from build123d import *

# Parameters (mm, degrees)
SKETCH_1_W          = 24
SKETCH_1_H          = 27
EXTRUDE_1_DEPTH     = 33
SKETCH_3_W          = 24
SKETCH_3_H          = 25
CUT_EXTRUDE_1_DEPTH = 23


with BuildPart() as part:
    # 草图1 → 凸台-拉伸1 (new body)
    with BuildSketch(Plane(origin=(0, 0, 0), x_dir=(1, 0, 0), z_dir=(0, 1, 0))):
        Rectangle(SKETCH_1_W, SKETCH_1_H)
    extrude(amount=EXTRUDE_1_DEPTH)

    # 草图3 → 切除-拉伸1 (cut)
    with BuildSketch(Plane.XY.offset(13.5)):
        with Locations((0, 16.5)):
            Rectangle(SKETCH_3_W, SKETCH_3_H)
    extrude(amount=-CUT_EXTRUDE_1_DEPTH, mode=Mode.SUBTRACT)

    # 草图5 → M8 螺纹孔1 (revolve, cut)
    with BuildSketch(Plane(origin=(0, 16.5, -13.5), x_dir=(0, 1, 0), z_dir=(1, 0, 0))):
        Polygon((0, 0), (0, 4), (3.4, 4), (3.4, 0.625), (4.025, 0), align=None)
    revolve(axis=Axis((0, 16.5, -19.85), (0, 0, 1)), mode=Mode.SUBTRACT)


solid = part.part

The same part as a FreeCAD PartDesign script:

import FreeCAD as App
import Part
import Sketcher
Q = App.Units.Quantity

doc = App.newDocument("Part")
body = doc.addObject("PartDesign::Body", "Body")

# Sketch on XZ plane
sketch1 = body.newObject("Sketcher::SketchObject", "Sketch")
sketch1.AttachmentSupport = (doc.getObject("XZ_Plane"), [""])
sketch1.MapMode = "FlatFace"
sketch1.addGeometry([
    Part.LineSegment(App.Vector(-12, -13.5, 0), App.Vector(-12, 13.5, 0)),
    Part.LineSegment(App.Vector(-12, 13.5, 0), App.Vector(12, 13.5, 0)),
    Part.LineSegment(App.Vector(12, 13.5, 0), App.Vector(12, -13.5, 0)),
    Part.LineSegment(App.Vector(12, -13.5, 0), App.Vector(-12, -13.5, 0)),
], False)
sketch1.addConstraint([
    Sketcher.Constraint("Coincident", 0, 2, 1, 1),
    Sketcher.Constraint("Coincident", 1, 2, 2, 1),
    Sketcher.Constraint("Coincident", 2, 2, 3, 1),
    Sketcher.Constraint("Coincident", 3, 2, 0, 1),
    Sketcher.Constraint("Vertical", 0),
    Sketcher.Constraint("Horizontal", 1),
    Sketcher.Constraint("Vertical", 2),
    Sketcher.Constraint("Horizontal", 3),
    Sketcher.Constraint("Symmetric", 0, 2, 2, 2, -1, 1),
    Sketcher.Constraint("DistanceX", 1, 1, 1, 2, 24.0),
    Sketcher.Constraint("DistanceY", 0, 1, 0, 2, 27.0),
])
pad1 = body.newObject("PartDesign::Pad", "Pad")
pad1.Profile = sketch1
pad1.Length = 33
pad1.Reversed = True

# Sketch on XY plane
sketch2 = body.newObject("Sketcher::SketchObject", "Sketch001")
sketch2.AttachmentSupport = (doc.getObject("XY_Plane"), [""])
sketch2.MapMode = "FlatFace"
sketch2.AttachmentOffset = App.Placement(App.Vector(0, 0, 13.5), App.Rotation())
sketch2.addGeometry([
    Part.LineSegment(App.Vector(-12, 29, 0), App.Vector(-12, 4, 0)),
    Part.LineSegment(App.Vector(-12, 4, 0), App.Vector(12, 4, 0)),
    Part.LineSegment(App.Vector(12, 4, 0), App.Vector(12, 29, 0)),
    Part.LineSegment(App.Vector(12, 29, 0), App.Vector(-12, 29, 0)),
], False)
sketch2.addConstraint([
    Sketcher.Constraint("Coincident", 0, 2, 1, 1),
    Sketcher.Constraint("Coincident", 1, 2, 2, 1),
    Sketcher.Constraint("Coincident", 2, 2, 3, 1),
    Sketcher.Constraint("Coincident", 3, 2, 0, 1),
    Sketcher.Constraint("Vertical", 0),
    Sketcher.Constraint("Horizontal", 1),
    Sketcher.Constraint("Vertical", 2),
    Sketcher.Constraint("Horizontal", 3),
    Sketcher.Constraint("DistanceX", 1, 1, 1, 2, 24.0),
    Sketcher.Constraint("DistanceY", 0, 2, 0, 1, 25.0),
    Sketcher.Constraint("DistanceX", 0, 2, -1, 1, 12.0),
    Sketcher.Constraint("DistanceY", -1, 1, 0, 2, 4.0),
])
pocket1 = body.newObject("PartDesign::Pocket", "Pocket")
pocket1.Profile = sketch2
pocket1.Length = 23

# Sketch on YZ plane
sketch3 = body.newObject("Sketcher::SketchObject", "Sketch002")
sketch3.AttachmentSupport = (doc.getObject("YZ_Plane"), [""])
sketch3.MapMode = "FlatFace"
sketch3.addGeometry([
    Part.LineSegment(App.Vector(16.5, -9.5, 0), App.Vector(16.5, -13.5, 0)),  # 0
    Part.LineSegment(App.Vector(16.5, -13.5, 0), App.Vector(20.525, -13.5, 0)),  # 1
    Part.LineSegment(App.Vector(20.525, -13.5, 0), App.Vector(19.9, -12.875, 0)),  # 2
    Part.LineSegment(App.Vector(19.9, -12.875, 0), App.Vector(19.9, -9.5, 0)),  # 3
    Part.LineSegment(App.Vector(19.9, -9.5, 0), App.Vector(16.5, -9.5, 0)),  # 4
], False)
sketch3.addGeometry(Part.LineSegment(App.Vector(16.5, -13.5, 0), App.Vector(16.5, -9.5, 0)), True)  # axis
sketch3.addConstraint([
    Sketcher.Constraint("Coincident", 0, 2, 1, 1),
    Sketcher.Constraint("Coincident", 1, 2, 2, 1),
    Sketcher.Constraint("Coincident", 2, 2, 3, 1),
    Sketcher.Constraint("Coincident", 3, 2, 4, 1),
    Sketcher.Constraint("Coincident", 4, 2, 0, 1),
    Sketcher.Constraint("Vertical", 0),
    Sketcher.Constraint("Horizontal", 1),
    Sketcher.Constraint("Vertical", 3),
    Sketcher.Constraint("Horizontal", 4),
    Sketcher.Constraint("Vertical", 5),
    Sketcher.Constraint("Coincident", 5, 1, 0, 2),
    Sketcher.Constraint("Horizontal", 3, 2, 5, 2),
    Sketcher.Constraint("DistanceY", 0, 2, 0, 1, 4.0),
    Sketcher.Constraint("Angle", 2, Q("135 deg")),
    Sketcher.Constraint("DistanceX", 4, 2, 4, 1, 3.4),
    Sketcher.Constraint("DistanceX", -1, 1, 0, 2, 16.5),
    Sketcher.Constraint("DistanceY", 0, 2, -1, 1, 13.5),
    Sketcher.Constraint("DistanceX", 1, 1, 1, 2, 4.025),
])
groove = body.newObject("PartDesign::Groove", "Groove")
groove.Profile = sketch3
groove.ReferenceAxis = (sketch3, ["Axis0"])
groove.Angle = 360

doc.recompute()
